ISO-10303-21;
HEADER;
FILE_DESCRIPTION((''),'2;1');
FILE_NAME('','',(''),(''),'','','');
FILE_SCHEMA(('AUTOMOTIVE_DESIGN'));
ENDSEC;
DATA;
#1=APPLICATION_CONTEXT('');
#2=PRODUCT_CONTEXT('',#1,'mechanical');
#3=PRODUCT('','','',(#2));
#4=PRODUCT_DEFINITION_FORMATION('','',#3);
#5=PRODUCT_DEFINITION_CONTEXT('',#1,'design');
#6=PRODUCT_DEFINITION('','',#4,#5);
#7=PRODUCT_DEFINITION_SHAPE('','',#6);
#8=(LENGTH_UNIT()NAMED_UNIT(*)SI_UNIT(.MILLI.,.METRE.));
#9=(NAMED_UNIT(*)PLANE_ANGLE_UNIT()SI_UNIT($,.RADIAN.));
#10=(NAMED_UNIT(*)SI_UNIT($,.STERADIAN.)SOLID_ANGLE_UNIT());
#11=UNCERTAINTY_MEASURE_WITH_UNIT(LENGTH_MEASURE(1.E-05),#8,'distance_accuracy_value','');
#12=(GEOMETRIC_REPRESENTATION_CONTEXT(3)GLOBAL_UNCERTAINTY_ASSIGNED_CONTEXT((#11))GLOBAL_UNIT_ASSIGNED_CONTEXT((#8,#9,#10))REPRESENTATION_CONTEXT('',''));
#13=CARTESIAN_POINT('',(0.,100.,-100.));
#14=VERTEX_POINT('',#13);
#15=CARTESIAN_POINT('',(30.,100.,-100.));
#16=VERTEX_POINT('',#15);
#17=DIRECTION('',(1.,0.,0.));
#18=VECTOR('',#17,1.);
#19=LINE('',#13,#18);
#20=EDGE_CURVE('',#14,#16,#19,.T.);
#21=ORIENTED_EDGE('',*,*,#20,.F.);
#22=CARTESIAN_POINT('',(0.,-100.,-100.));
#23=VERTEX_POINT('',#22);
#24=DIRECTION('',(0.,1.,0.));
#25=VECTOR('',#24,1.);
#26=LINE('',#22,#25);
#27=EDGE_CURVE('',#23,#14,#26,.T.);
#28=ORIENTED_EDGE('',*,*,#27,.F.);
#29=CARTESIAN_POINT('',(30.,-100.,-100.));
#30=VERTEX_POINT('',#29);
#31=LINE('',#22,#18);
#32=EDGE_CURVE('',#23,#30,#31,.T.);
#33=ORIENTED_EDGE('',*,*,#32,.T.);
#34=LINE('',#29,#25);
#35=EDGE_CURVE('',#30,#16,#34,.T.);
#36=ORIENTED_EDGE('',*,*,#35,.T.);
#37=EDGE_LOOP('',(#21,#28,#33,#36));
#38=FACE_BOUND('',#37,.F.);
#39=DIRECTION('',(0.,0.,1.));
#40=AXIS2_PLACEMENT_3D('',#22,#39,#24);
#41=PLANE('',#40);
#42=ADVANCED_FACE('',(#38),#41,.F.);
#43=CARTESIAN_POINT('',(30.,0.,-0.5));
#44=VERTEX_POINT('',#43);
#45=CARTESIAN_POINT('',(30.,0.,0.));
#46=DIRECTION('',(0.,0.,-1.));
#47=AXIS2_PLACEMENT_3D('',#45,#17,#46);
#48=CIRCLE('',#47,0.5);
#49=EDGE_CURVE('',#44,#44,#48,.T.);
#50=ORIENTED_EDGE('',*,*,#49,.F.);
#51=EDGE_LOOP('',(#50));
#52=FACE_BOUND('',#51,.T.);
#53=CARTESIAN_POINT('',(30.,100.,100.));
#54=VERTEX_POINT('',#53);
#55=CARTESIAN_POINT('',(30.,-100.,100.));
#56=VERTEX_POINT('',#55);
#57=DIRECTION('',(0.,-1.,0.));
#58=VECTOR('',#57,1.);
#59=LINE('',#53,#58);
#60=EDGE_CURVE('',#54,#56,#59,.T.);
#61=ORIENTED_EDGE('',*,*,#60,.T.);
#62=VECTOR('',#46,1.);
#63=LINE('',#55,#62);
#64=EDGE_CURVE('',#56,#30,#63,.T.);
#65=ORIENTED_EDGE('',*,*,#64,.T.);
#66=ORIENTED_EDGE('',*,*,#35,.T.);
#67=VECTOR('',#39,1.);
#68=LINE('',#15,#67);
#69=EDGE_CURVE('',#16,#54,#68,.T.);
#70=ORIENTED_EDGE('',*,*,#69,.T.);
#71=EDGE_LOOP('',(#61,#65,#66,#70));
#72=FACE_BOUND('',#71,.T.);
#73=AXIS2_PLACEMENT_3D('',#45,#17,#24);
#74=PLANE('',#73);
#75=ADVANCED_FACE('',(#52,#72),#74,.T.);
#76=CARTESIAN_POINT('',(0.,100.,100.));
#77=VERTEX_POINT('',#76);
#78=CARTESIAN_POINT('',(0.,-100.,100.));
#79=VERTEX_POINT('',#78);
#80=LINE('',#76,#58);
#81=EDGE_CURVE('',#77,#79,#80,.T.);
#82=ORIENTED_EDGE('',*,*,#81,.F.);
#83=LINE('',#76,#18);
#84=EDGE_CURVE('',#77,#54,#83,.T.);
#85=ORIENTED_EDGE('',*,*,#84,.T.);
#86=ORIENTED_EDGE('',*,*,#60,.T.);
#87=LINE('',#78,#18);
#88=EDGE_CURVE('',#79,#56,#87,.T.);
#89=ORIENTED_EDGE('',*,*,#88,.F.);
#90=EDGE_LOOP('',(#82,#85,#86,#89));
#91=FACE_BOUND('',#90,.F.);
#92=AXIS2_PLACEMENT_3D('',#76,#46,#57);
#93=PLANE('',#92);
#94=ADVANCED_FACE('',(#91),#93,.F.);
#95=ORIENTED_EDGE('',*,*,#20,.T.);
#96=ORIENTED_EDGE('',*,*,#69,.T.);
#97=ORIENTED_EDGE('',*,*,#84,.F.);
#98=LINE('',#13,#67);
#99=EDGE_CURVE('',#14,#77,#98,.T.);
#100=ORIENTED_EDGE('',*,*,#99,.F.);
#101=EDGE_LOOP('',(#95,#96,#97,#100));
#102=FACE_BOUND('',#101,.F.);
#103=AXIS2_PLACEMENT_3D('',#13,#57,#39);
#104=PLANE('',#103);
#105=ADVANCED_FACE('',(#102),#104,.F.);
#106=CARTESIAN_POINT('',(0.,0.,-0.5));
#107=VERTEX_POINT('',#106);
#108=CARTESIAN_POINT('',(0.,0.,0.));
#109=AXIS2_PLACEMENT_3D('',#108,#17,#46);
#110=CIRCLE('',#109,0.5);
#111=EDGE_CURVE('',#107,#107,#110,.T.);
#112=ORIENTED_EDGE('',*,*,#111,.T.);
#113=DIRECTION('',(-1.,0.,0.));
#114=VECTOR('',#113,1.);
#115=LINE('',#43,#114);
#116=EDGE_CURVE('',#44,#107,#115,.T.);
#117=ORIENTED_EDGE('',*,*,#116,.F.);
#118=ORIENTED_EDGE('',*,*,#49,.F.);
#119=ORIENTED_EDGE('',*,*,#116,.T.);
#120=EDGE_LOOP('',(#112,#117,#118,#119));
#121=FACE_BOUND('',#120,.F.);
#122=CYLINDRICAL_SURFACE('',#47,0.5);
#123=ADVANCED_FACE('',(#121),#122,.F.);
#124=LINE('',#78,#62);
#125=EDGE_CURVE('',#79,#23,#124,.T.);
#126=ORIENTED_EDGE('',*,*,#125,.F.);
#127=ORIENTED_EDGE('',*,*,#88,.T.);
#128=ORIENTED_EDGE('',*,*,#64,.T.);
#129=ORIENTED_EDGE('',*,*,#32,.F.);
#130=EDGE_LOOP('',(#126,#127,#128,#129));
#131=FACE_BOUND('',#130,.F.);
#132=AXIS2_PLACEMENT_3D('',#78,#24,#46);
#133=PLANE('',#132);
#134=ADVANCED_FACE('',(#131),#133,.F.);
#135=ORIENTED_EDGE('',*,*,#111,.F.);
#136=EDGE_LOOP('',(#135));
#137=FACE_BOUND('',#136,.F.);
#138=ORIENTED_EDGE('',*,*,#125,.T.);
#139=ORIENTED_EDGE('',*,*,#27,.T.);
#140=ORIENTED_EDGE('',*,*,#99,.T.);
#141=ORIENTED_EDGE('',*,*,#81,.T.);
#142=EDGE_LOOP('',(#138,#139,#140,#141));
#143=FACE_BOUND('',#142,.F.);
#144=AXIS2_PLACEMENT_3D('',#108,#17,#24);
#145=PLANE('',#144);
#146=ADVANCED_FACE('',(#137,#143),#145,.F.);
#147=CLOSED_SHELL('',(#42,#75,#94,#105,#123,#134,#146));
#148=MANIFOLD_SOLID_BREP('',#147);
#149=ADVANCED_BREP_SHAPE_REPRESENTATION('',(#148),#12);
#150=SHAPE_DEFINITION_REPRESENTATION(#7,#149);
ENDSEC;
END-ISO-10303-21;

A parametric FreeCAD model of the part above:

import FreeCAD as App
import Part
import Sketcher
from FreeCAD import Vector


def add_polygon(sketch, points):
    """Adds a closed chain of lines whose ends are joined by coincident constraints."""
    first, n = sketch.GeometryCount, len(points)
    for a, b in zip(points, points[1:] + points[:1]):
        sketch.addGeometry(Part.LineSegment(App.Vector(*a, 0), App.Vector(*b, 0)), False)
    for i in range(n):
        sketch.addConstraint(Sketcher.Constraint("Coincident", first + i, 2, first + (i + 1) % n, 1))

doc = App.newDocument("Part")
body = doc.addObject("PartDesign::Body", "Body")

sketch1 = body.newObject("Sketcher::SketchObject", "Sketch")
sketch1.AttachmentSupport = (doc.getObject("YZ_Plane"), [""])
sketch1.MapMode = "FlatFace"
add_polygon(sketch1, [(-100, 100), (-100, -100), (100, -100), (100, 100)])
sketch1.addConstraint([
    Sketcher.Constraint("Vertical", 0),
    Sketcher.Constraint("Horizontal", 1),
    Sketcher.Constraint("Vertical", 2),
    Sketcher.Constraint("Horizontal", 3),
    Sketcher.Constraint("Symmetric", 0, 2, 2, 2, -1, 1),
    Sketcher.Constraint("Equal", 3, 0),
    Sketcher.Constraint("DistanceX", 1, 1, 1, 2, 200.0),
])
pad1 = body.newObject("PartDesign::Pad", "Pad")
pad1.Profile = sketch1
pad1.Length = 30

sketch2 = body.newObject("Sketcher::SketchObject", "Sketch001")
sketch2.AttachmentSupport = (doc.getObject("YZ_Plane"), [""])
sketch2.MapMode = "FlatFace"
sketch2.AttachmentOffset = App.Placement(Vector(0, 0, 30), App.Rotation())
sketch2.addGeometry(Part.Circle(Vector(0, 0, 0), Vector(0, 0, 1), 0.5), False)
sketch2.addConstraint([
    Sketcher.Constraint("Coincident", 0, 3, -1, 1),
    Sketcher.Constraint("Diameter", 0, 1.0),
])
pocket1 = body.newObject("PartDesign::Pocket", "Pocket")
pocket1.Profile = sketch2
pocket1.Length = 30

doc.recompute()
